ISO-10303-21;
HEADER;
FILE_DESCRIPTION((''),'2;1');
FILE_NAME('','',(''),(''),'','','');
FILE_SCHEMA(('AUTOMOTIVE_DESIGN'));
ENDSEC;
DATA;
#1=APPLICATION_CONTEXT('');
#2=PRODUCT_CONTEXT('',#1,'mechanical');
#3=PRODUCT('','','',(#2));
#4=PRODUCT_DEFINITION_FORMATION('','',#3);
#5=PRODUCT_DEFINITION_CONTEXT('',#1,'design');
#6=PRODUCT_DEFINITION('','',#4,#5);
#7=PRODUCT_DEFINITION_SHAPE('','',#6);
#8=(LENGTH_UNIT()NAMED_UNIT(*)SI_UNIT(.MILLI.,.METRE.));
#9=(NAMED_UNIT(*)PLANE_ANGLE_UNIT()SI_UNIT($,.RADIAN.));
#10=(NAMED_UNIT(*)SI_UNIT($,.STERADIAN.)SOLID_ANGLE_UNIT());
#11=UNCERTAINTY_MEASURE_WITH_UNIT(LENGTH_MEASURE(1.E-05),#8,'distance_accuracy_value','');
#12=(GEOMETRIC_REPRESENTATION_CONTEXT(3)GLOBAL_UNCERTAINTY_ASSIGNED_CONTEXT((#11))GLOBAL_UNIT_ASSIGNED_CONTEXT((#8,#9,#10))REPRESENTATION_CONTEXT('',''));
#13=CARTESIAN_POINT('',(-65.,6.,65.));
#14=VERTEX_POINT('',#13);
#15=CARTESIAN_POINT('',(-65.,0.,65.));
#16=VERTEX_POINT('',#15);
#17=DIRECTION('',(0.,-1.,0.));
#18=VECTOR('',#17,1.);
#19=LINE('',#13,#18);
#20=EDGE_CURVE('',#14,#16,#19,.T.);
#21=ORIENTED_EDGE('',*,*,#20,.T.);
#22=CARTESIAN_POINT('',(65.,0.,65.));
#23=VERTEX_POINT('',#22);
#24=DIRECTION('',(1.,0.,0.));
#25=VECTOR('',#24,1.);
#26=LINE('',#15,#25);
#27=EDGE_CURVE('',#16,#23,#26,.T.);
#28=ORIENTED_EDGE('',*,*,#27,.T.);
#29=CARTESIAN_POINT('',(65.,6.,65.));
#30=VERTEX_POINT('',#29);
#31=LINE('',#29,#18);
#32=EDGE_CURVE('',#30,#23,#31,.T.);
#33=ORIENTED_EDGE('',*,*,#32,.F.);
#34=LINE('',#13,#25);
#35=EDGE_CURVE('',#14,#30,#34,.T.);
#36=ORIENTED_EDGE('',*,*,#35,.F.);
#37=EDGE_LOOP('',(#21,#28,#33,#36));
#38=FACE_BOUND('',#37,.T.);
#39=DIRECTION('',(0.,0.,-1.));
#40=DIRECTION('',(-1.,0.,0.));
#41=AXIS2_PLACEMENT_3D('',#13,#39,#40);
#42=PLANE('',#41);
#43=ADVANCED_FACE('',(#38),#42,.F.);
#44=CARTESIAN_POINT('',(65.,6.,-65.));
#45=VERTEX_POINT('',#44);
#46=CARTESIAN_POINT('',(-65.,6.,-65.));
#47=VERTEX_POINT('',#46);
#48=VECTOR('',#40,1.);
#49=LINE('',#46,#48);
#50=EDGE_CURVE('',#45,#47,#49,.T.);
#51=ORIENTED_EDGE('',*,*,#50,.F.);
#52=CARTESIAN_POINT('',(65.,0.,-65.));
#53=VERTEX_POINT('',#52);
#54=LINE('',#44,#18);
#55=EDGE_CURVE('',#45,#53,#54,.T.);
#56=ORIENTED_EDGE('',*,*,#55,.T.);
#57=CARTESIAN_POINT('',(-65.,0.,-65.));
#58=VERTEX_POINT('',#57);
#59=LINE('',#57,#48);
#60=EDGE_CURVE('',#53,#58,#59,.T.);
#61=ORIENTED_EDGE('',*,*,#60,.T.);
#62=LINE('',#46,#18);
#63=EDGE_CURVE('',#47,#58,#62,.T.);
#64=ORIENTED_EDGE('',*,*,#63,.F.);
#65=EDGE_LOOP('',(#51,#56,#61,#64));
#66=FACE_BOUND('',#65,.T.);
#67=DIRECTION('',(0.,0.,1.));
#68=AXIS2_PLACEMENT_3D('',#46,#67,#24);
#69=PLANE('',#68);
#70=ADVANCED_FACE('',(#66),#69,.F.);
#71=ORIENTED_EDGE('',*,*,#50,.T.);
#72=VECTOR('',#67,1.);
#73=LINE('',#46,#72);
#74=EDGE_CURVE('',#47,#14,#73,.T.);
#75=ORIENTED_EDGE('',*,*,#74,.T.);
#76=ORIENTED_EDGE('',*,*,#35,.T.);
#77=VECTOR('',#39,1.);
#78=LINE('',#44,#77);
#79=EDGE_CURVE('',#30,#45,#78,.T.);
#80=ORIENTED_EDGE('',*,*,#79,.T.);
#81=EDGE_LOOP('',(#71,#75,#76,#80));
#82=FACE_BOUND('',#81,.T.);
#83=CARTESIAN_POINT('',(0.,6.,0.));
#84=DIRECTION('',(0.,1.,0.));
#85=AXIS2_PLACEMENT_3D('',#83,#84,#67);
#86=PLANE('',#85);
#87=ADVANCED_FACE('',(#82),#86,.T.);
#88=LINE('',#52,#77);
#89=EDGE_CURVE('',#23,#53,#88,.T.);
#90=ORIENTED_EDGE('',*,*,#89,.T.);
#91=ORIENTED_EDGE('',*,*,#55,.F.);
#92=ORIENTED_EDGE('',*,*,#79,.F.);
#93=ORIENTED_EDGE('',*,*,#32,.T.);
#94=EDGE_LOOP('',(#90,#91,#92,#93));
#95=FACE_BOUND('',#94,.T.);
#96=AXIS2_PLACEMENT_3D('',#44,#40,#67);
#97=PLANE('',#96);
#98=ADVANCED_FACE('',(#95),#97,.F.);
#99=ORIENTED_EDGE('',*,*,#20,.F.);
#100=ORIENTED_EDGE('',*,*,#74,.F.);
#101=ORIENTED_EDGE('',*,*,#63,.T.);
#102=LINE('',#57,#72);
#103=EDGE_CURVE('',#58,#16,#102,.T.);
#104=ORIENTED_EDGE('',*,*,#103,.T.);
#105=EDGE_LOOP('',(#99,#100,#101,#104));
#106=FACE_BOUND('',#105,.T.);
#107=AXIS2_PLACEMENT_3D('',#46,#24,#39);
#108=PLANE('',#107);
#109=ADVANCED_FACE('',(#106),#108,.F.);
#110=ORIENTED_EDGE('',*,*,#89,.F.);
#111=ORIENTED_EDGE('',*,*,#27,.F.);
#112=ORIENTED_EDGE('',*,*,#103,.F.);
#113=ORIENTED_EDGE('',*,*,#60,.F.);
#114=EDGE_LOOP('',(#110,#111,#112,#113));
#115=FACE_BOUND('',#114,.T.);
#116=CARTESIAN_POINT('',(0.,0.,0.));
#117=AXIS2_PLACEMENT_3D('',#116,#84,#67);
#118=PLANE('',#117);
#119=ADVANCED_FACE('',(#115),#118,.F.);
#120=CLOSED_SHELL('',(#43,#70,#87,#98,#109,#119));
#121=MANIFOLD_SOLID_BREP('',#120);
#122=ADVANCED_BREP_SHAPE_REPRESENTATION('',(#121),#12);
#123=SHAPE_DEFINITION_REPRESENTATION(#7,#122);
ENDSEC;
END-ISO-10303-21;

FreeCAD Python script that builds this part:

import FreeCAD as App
import Part
import Sketcher


def add_polygon(sketch, points):
    """Adds a closed chain of lines whose ends are joined by coincident constraints."""
    first, n = sketch.GeometryCount, len(points)
    for a, b in zip(points, points[1:] + points[:1]):
        sketch.addGeometry(Part.LineSegment(App.Vector(*a, 0), App.Vector(*b, 0)), False)
    for i in range(n):
        sketch.addConstraint(Sketcher.Constraint("Coincident", first + i, 2, first + (i + 1) % n, 1))

doc = App.newDocument("Part")
body = doc.addObject("PartDesign::Body", "Body")

# Sketch on XZ plane
sketch1 = doc.addObject("Sketcher::SketchObject", "Sketch")
body.addObject(sketch1)
sketch1.AttachmentSupport = (doc.XZ_Plane, [""])
sketch1.MapMode = "FlatFace"
add_polygon(sketch1, [(-65, -65), (-65, 65), (65, 65), (65, -65)])  # lines 0-3
sketch1.addConstraint([
    Sketcher.Constraint("Vertical", 0),
    Sketcher.Constraint("Horizontal", 1),
    Sketcher.Constraint("Vertical", 2),
    Sketcher.Constraint("Horizontal", 3),
    Sketcher.Constraint("Symmetric", 0, 2, 2, 2, -1, 1),
    Sketcher.Constraint("Equal", 3, 0),
    Sketcher.Constraint("DistanceX", 1, 1, 1, 2, 130.0),
])
pad1 = doc.addObject("PartDesign::Pad", "Pad")
body.addObject(pad1)
pad1.Profile = sketch1
pad1.Length = 6
pad1.Reversed = True

doc.recompute()
